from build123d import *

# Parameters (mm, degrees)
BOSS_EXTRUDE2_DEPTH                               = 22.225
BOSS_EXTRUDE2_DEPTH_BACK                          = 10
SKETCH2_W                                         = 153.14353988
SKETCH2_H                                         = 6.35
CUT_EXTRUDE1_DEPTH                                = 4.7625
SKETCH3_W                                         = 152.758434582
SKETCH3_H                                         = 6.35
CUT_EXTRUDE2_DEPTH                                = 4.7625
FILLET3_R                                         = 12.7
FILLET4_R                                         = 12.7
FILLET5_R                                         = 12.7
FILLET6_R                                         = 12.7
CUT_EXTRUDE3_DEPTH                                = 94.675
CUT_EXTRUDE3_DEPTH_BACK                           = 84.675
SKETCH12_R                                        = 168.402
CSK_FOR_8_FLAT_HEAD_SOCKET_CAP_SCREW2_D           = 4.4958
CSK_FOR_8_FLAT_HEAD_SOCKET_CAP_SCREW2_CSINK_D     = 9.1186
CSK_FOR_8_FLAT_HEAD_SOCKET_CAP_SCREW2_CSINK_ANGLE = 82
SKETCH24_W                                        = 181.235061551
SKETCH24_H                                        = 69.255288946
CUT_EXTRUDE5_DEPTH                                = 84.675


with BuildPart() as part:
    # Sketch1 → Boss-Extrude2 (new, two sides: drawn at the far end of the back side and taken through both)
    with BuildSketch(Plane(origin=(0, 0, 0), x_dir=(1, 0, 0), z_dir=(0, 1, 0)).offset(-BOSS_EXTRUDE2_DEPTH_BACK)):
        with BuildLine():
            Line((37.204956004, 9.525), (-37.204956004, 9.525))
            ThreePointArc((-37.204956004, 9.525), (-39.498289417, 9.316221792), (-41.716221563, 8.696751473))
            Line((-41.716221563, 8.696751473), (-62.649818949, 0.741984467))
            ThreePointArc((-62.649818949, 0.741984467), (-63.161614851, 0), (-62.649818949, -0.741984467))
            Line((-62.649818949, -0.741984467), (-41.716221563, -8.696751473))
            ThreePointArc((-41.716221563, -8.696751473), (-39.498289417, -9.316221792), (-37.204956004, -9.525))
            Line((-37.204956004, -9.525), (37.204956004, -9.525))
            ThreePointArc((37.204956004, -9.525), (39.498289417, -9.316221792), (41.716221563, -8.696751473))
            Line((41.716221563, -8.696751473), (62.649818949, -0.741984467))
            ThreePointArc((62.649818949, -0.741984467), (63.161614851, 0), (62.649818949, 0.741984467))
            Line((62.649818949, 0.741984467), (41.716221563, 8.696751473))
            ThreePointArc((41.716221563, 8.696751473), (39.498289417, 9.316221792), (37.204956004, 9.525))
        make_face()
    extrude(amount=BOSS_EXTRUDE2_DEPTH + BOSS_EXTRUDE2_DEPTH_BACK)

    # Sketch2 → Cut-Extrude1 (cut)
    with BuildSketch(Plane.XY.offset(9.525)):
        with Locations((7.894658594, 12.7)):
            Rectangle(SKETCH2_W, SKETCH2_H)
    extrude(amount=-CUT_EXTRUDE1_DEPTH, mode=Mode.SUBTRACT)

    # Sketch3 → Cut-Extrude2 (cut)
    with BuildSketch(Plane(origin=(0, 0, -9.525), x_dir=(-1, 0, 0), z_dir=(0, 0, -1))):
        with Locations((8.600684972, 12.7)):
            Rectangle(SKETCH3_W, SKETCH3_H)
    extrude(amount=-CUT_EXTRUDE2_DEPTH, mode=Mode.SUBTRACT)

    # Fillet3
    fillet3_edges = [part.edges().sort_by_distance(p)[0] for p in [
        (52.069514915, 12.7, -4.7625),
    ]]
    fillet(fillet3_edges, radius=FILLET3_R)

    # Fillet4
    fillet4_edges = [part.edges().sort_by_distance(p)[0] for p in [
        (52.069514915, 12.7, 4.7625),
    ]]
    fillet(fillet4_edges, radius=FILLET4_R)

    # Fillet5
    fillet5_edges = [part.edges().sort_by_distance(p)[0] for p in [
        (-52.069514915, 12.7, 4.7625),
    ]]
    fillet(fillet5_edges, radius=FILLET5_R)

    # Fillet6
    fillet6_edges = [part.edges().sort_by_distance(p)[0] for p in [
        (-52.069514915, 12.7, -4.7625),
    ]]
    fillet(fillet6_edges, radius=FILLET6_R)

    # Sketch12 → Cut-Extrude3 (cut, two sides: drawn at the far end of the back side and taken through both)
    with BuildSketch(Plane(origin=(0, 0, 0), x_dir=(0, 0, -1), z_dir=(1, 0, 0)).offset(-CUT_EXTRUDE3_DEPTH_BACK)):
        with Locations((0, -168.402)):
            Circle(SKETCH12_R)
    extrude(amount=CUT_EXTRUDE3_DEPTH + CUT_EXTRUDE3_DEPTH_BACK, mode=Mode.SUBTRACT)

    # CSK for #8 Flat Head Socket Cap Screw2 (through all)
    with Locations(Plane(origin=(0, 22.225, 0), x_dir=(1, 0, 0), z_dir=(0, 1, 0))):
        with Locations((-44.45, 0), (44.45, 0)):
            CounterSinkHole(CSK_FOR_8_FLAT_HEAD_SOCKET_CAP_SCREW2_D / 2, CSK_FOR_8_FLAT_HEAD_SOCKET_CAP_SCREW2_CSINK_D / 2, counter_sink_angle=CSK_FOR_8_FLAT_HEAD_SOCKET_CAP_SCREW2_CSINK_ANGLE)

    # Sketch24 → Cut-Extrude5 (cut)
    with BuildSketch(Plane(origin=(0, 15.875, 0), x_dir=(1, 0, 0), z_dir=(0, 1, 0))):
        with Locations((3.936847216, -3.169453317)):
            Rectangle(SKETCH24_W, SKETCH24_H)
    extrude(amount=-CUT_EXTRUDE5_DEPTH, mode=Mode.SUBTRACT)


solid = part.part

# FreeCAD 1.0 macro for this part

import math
import FreeCAD as App
import Part
import Sketcher
Q = App.Units.Quantity


def edges_at(feature, points):
    """Names of the edges that pass closest to the given points."""
    edges = feature.Shape.Edges
    near = lambda p: min(range(len(edges)), key=lambda i: edges[i].distToShape(Part.Vertex(*p))[0])
    return sorted({f"Edge{near(p) + 1}" for p in points})


def add_polygon(sketch, points):
    """Adds a closed chain of lines whose ends are joined by coincident constraints."""
    first, n = sketch.GeometryCount, len(points)
    for a, b in zip(points, points[1:] + points[:1]):
        sketch.addGeometry(Part.LineSegment(App.Vector(*a, 0), App.Vector(*b, 0)), False)
    for i in range(n):
        sketch.addConstraint(Sketcher.Constraint("Coincident", first + i, 2, first + (i + 1) % n, 1))

doc = App.newDocument("Part")
body = doc.addObject("PartDesign::Body", "Body")

sketch1 = body.newObject("Sketcher::SketchObject", "Sketch")
sketch1.AttachmentSupport = (doc.getObject("XZ_Plane"), [""])
sketch1.MapMode = "FlatFace"
sketch1.addGeometry([
    Part.LineSegment(App.Vector(37.204956, -9.525, 0), App.Vector(-37.204956, -9.525, 0)),
    Part.ArcOfCircle(Part.Circle(App.Vector(-37.204956, 3.175, 0), App.Vector(0, 0, 1), 12.7), math.radians(-110.806791), math.radians(-90)),
    Part.LineSegment(App.Vector(-41.716222, -8.696751, 0), App.Vector(-62.649819, -0.741984, 0)),
    Part.ArcOfCircle(Part.Circle(App.Vector(-62.367865, 0, 0), App.Vector(0, 0, 1), 0.79375), math.radians(110.806791), math.radians(249.193209)),
    Part.LineSegment(App.Vector(-62.649819, 0.741984, 0), App.Vector(-41.716222, 8.696751, 0)),
    Part.ArcOfCircle(Part.Circle(App.Vector(-37.204956, -3.175, 0), App.Vector(0, 0, 1), 12.7), math.radians(90), math.radians(110.806791)),
    Part.LineSegment(App.Vector(-37.204956, 9.525, 0), App.Vector(37.204956, 9.525, 0)),
    Part.ArcOfCircle(Part.Circle(App.Vector(37.204956, -3.175, 0), App.Vector(0, 0, 1), 12.7), math.radians(69.193209), math.radians(90)),
    Part.LineSegment(App.Vector(41.716222, 8.696751, 0), App.Vector(62.649819, 0.741984, 0)),
    Part.ArcOfCircle(Part.Circle(App.Vector(62.367865, 0, 0), App.Vector(0, 0, 1), 0.79375), math.radians(-69.193209), math.radians(69.193209)),
    Part.LineSegment(App.Vector(62.649819, -0.741984, 0), App.Vector(41.716222, -8.696751, 0)),
    Part.ArcOfCircle(Part.Circle(App.Vector(37.204956, 3.175, 0), App.Vector(0, 0, 1), 12.7), math.radians(-90), math.radians(-69.193209)),
], False)
sketch1.addConstraint([
    Sketcher.Constraint("Tangent", 0, 2, 1, 2),
    Sketcher.Constraint("Tangent", 1, 1, 2, 1),
    Sketcher.Constraint("Tangent", 2, 2, 3, 2),
    Sketcher.Constraint("Tangent", 3, 1, 4, 1),
    Sketcher.Constraint("Tangent", 4, 2, 5, 2),
    Sketcher.Constraint("Tangent", 5, 1, 6, 1),
    Sketcher.Constraint("Tangent", 6, 2, 7, 2),
    Sketcher.Constraint("Tangent", 7, 1, 8, 1),
    Sketcher.Constraint("Tangent", 8, 2, 9, 2),
    Sketcher.Constraint("Tangent", 9, 1, 10, 1),
    Sketcher.Constraint("Tangent", 10, 2, 11, 2),
    Sketcher.Constraint("Tangent", 11, 1, 0, 1),
    Sketcher.Constraint("Horizontal", 0),
    Sketcher.Constraint("Horizontal", 6),
    Sketcher.Constraint("Equal", 1, 5),
    Sketcher.Constraint("Equal", 5, 7),
    Sketcher.Constraint("Equal", 3, 9),
    Sketcher.Constraint("Equal", 7, 11),
    Sketcher.Constraint("Symmetric", 1, 3, 7, 3, -1, 1),
    Sketcher.Constraint("Symmetric", 3, 3, 9, 3, -1, 1),
    Sketcher.Constraint("Symmetric", 4, 2, 7, 1, -2),
    Sketcher.Constraint("Parallel", 4, 10),
    Sketcher.Constraint("Radius", 1, Q("0.5 in")),
    Sketcher.Constraint("Radius", 3, Q("0.03125 in")),
    Sketcher.Constraint("DistanceY", 5, 3, 1, 3, Q("0.25 in")),
    Sketcher.Constraint("DistanceX", 0, 2, 0, 1, Q("74.409912 mm")),
    Sketcher.Constraint("DistanceX", 1, 1, -1, 1, Q("41.716222 mm")),
])
pad1 = body.newObject("PartDesign::Pad", "Pad")
pad1.Profile = sketch1
pad1.Type = "TwoLengths"
pad1.Length = Q("0.875 in")
pad1.Length2 = 10
pad1.Reversed = True

sketch2 = body.newObject("Sketcher::SketchObject", "Sketch001")
sketch2.AttachmentSupport = (doc.getObject("XY_Plane"), [""])
sketch2.MapMode = "FlatFace"
sketch2.AttachmentOffset = App.Placement(App.Vector(0, 0, 0.375 * 25.4), App.Rotation())
add_polygon(sketch2, [(-68.677111, 15.875), (-68.677111, 9.525), (84.466429, 9.525), (84.466429, 15.875)])
sketch2.addConstraint([
    Sketcher.Constraint("Vertical", 0),
    Sketcher.Constraint("Horizontal", 1),
    Sketcher.Constraint("Vertical", 2),
    Sketcher.Constraint("Horizontal", 3),
    Sketcher.Constraint("DistanceY", 0, 2, 0, 1, Q("0.25 in")),
    Sketcher.Constraint("DistanceY", -1, 1, 0, 2, Q("0.375 in")),
    Sketcher.Constraint("DistanceX", 1, 1, 1, 2, Q("153.14354 mm")),
    Sketcher.Constraint("DistanceX", 0, 2, -1, 1, Q("68.677111 mm")),
])
pocket1 = body.newObject("PartDesign::Pocket", "Pocket")
pocket1.Profile = sketch2
pocket1.Length = Q("0.1875 in")

sketch3 = body.newObject("Sketcher::SketchObject", "Sketch002")
sketch3.AttachmentSupport = (doc.getObject("XY_Plane"), [""])
sketch3.MapMode = "FlatFace"
sketch3.AttachmentOffset = App.Placement(App.Vector(0, 0, -0.375 * 25.4), App.Rotation())
add_polygon(sketch3, [(67.778532, 15.875), (67.778532, 9.525), (-84.979902, 9.525), (-84.979902, 15.875)])
sketch3.addConstraint([
    Sketcher.Constraint("Vertical", 0),
    Sketcher.Constraint("Horizontal", 1),
    Sketcher.Constraint("Vertical", 2),
    Sketcher.Constraint("Horizontal", 3),
    Sketcher.Constraint("DistanceY", 0, 2, 0, 1, Q("0.25 in")),
    Sketcher.Constraint("DistanceY", -1, 1, 0, 2, Q("0.375 in")),
    Sketcher.Constraint("DistanceX", 1, 2, 1, 1, Q("152.758435 mm")),
    Sketcher.Constraint("DistanceX", -1, 1, 0, 2, Q("67.778532 mm")),
])
pocket2 = body.newObject("PartDesign::Pocket", "Pocket001")
pocket2.Profile = sketch3
pocket2.Length = Q("0.1875 in")
pocket2.Reversed = True
doc.recompute()

fillet = body.newObject("PartDesign::Fillet", "Fillet")
fillet.Base = (pocket2, edges_at(pocket2, [(52.07, 12.7, -4.763)]))
fillet.Radius = Q("0.5 in")
doc.recompute()

fillet2 = body.newObject("PartDesign::Fillet", "Fillet001")
fillet2.Base = (fillet, edges_at(fillet, [(52.07, 12.7, 4.763)]))
fillet2.Radius = Q("0.5 in")
doc.recompute()

fillet3 = body.newObject("PartDesign::Fillet", "Fillet002")
fillet3.Base = (fillet2, edges_at(fillet2, [(-52.07, 12.7, 4.763)]))
fillet3.Radius = Q("0.5 in")
doc.recompute()

fillet4 = body.newObject("PartDesign::Fillet", "Fillet003")
fillet4.Base = (fillet3, edges_at(fillet3, [(-52.07, 12.7, -4.763)]))
fillet4.Radius = Q("0.5 in")

sketch4 = body.newObject("Sketcher::SketchObject", "Sketch003")
sketch4.AttachmentSupport = (doc.getObject("YZ_Plane"), [""])
sketch4.MapMode = "FlatFace"
sketch4.addGeometry(Part.Circle(App.Vector(-168.402, 0, 0), App.Vector(0, 0, 1), 168.402), False)
sketch4.addConstraint([
    Sketcher.Constraint("PointOnObject", 0, 3, -1),
    Sketcher.Constraint("Diameter", 0, Q("13.26 in")),
    Sketcher.Constraint("DistanceX", 0, 3, -1, 1, Q("6.63 in")),
])
pocket3 = body.newObject("PartDesign::Pocket", "Pocket002")
pocket3.Profile = sketch4
pocket3.Type = "ThroughAll"
pocket3.Midplane = True

sketch5 = body.newObject("Sketcher::SketchObject", "Sketch004")
sketch5.AttachmentSupport = (doc.getObject("XZ_Plane"), [""])
sketch5.MapMode = "FlatFace"
sketch5.AttachmentOffset = App.Placement(App.Vector(0, 0, -0.875 * 25.4), App.Rotation())
sketch5.addGeometry([
    Part.Circle(App.Vector(-44.45, 0, 0), App.Vector(0, 0, 1), 2.2479),
    Part.Circle(App.Vector(44.45, 0, 0), App.Vector(0, 0, 1), 2.2479),
], False)
sketch5.addConstraint([
    Sketcher.Constraint("Equal", 0, 1),
    Sketcher.Constraint("Symmetric", 0, 3, 1, 3, -1, 1),
    Sketcher.Constraint("PointOnObject", 0, 3, -1),
    Sketcher.Constraint("Diameter", 0, Q("0.177 in")),
    Sketcher.Constraint("DistanceX", 0, 3, 1, 3, Q("3.5 in")),
])
doc.recompute()
hole = body.newObject("PartDesign::Hole", "Hole")
hole.Profile = sketch5
hole.ThreadType = "None"
hole.Diameter = Q("0.177 in")
hole.DepthType = "ThroughAll"
hole.HoleCutType = "Countersink"
hole.HoleCutDiameter = Q("0.359 in")
hole.HoleCutCountersinkAngle = 82
hole.Reversed = True

sketch6 = body.newObject("Sketcher::SketchObject", "Sketch005")
sketch6.AttachmentSupport = (doc.getObject("XZ_Plane"), [""])
sketch6.MapMode = "FlatFace"
sketch6.AttachmentOffset = App.Placement(App.Vector(0, 0, -0.625 * 25.4), App.Rotation())
add_polygon(sketch6, [(-86.680684, -31.458191), (-86.680684, 37.797098), (94.554378, 37.797098), (94.554378, -31.458191)])
sketch6.addConstraint([
    Sketcher.Constraint("Vertical", 0),
    Sketcher.Constraint("Horizontal", 1),
    Sketcher.Constraint("Vertical", 2),
    Sketcher.Constraint("Horizontal", 3),
    Sketcher.Constraint("DistanceX", 1, 1, 1, 2, Q("181.235062 mm")),
    Sketcher.Constraint("DistanceY", 0, 1, 0, 2, Q("69.255289 mm")),
    Sketcher.Constraint("DistanceY", 2, 2, -1, 1, Q("31.458191 mm")),
    Sketcher.Constraint("DistanceX", 0, 2, -1, 1, Q("86.680684 mm")),
])
pocket4 = body.newObject("PartDesign::Pocket", "Pocket003")
pocket4.Profile = sketch6
pocket4.Length = 84.675
pocket4.Reversed = True

doc.recompute()
